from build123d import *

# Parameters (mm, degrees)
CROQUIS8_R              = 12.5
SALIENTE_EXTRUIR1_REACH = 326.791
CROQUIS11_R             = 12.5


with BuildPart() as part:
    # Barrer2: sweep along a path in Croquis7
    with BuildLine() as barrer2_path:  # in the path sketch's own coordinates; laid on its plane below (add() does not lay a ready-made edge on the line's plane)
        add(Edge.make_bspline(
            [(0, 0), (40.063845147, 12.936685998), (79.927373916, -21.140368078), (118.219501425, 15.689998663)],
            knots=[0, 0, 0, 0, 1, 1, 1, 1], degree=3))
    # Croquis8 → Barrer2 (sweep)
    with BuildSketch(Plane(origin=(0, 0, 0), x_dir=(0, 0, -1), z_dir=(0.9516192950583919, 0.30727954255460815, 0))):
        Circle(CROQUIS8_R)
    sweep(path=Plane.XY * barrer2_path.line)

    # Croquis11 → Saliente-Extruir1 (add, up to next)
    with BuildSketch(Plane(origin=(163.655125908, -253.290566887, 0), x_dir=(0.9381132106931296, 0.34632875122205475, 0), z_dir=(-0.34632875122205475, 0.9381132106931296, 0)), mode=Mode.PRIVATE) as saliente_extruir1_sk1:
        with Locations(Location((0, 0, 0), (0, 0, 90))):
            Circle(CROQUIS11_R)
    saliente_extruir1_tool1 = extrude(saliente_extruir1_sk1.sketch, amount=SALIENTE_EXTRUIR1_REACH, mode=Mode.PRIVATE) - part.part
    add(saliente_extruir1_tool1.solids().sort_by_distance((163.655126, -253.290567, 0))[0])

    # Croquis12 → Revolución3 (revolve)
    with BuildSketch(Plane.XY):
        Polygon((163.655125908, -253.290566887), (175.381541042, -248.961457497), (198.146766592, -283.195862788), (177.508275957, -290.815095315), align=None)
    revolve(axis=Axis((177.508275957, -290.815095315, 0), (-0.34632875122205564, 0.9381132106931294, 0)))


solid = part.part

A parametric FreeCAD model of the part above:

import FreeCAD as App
import Part
import Sketcher
Q = App.Units.Quantity


def add_polygon(sketch, points):
    """Adds a closed chain of lines whose ends are joined by coincident constraints."""
    first, n = sketch.GeometryCount, len(points)
    for a, b in zip(points, points[1:] + points[:1]):
        sketch.addGeometry(Part.LineSegment(App.Vector(*a, 0), App.Vector(*b, 0)), False)
    for i in range(n):
        sketch.addConstraint(Sketcher.Constraint("Coincident", first + i, 2, first + (i + 1) % n, 1))

doc = App.newDocument("Part")
params = doc.addObject("Spreadsheet::Sheet", "Params")
for row, (alias, value) in enumerate([
    ("sketch1_diameter", "25 mm"),
    ("sketch3_diameter", "25 mm"),
    ("pad1_length", "267.871875 mm"),
    ("sketch4_length", "40 mm"),
    ("sketch4_length2", "22 mm"),
    ("sketch4_length3", "12.5 mm"),
    ("revolution_angle", "360 deg"),
], start=1):
    params.set(f"A{row}", alias)
    params.set(f"B{row}", "=" + value)
    params.setAlias(f"B{row}", alias)

body = doc.addObject("PartDesign::Body", "Body")

# Sketch on an angled plane
sketch1 = doc.addObject("Sketcher::SketchObject", "Sketch")
body.addObject(sketch1)
sketch1.Placement = App.Placement(App.Vector(0, 0, 0), App.Rotation(App.Vector(0, 0, -1), App.Vector(-0.307279543, 0.951619295, 0), App.Vector(0.951619295, 0.307279543, 0), "ZXY"))
sketch1.addGeometry(Part.Circle(App.Vector(0, 0, 0), App.Vector(0, 0, 1), 12), False)
sketch1.addConstraint([
    Sketcher.Constraint("Coincident", 0, 3, -1, 1),
    Sketcher.Constraint("Diameter", 0, Q("25 mm")),
])
sketch1.setExpression("Constraints[1]", "Params.sketch1_diameter")

# Sketch on XY plane
sketch2 = doc.addObject("Sketcher::SketchObject", "Sketch001")
body.addObject(sketch2)
sketch2.AttachmentSupport = (doc.XY_Plane, [""])
sketch2.MapMode = "FlatFace"
sketch2.addGeometry(Part.BSplineCurve([App.Vector(0, 0, 0), App.Vector(40.063845, 12.936686, 0), App.Vector(79.927374, -21.140368, 0), App.Vector(118.219501, 15.689999, 0)], [4, 4], [0, 1], False, 3, [1, 1, 1, 1], False), False)
sketch2.addConstraint(Sketcher.Constraint("Block", 0))
doc.recompute()

additivepipe = doc.addObject("PartDesign::AdditivePipe", "AdditivePipe")
body.addObject(additivepipe)
additivepipe.Profile = sketch1
additivepipe.Spine = (sketch2, ["Edge1"])

# Sketch on an angled plane
sketch3 = doc.addObject("Sketcher::SketchObject", "Sketch002")
body.addObject(sketch3)
sketch3.Placement = App.Placement(App.Vector(163.655126, -253.290567, 0), App.Rotation(App.Vector(0.938113211, 0.346328751, 0), App.Vector(0, 0, -1), App.Vector(-0.346328751, 0.938113211, 0), "ZXY"))
sketch3.addGeometry(Part.Circle(App.Vector(0, 0, 0), App.Vector(0, 0, 1), 12), False)
sketch3.addConstraint([
    Sketcher.Constraint("Coincident", 0, 3, -1, 1),
    Sketcher.Constraint("Diameter", 0, Q("25 mm")),
])
sketch3.setExpression("Constraints[1]", "Params.sketch3_diameter")
pad1 = doc.addObject("PartDesign::Pad", "Pad")
body.addObject(pad1)
pad1.Profile = sketch3
pad1.setExpression("Length", "Params.pad1_length")

# Sketch on XY plane
sketch4 = doc.addObject("Sketcher::SketchObject", "Sketch003")
body.addObject(sketch4)
sketch4.AttachmentSupport = (doc.XY_Plane, [""])
sketch4.MapMode = "FlatFace"
add_polygon(sketch4, [(175, -249), (164, -253), (178, -291), (198, -283)])  # lines 0-3
sketch4.addGeometry(Part.LineSegment(App.Vector(178, -291, 0), App.Vector(164, -253, 0)), True)  # axis
sketch4.addConstraint([
    Sketcher.Constraint("Coincident", 4, 1, 1, 2),
    Sketcher.Constraint("Coincident", 4, 2, 0, 2),
    Sketcher.Constraint("Perpendicular", 0, 1),
    Sketcher.Constraint("Perpendicular", 1, 2),
    Sketcher.Constraint("Distance", 1, Q("40 mm")),
    Sketcher.Constraint("Distance", 2, Q("22 mm")),
    Sketcher.Constraint("Distance", 0, Q("12.5 mm")),
    Sketcher.Constraint("DistanceX", -1, 1, 3, 2, Q("175.381541 mm")),
    Sketcher.Constraint("DistanceX", 0, 2, 1, 2, Q("13.85315 mm")),
    Sketcher.Constraint("DistanceY", 0, 2, -1, 1, Q("253.290567 mm")),
])
sketch4.setExpression("Constraints[8]", "Params.sketch4_length")
sketch4.setExpression("Constraints[9]", "Params.sketch4_length2")
sketch4.setExpression("Constraints[10]", "Params.sketch4_length3")
revolution = doc.addObject("PartDesign::Revolution", "Revolution")
body.addObject(revolution)
revolution.Profile = sketch4
revolution.ReferenceAxis = (sketch4, ["Axis0"])
revolution.setExpression("Angle", "Params.revolution_angle")

doc.recompute()
